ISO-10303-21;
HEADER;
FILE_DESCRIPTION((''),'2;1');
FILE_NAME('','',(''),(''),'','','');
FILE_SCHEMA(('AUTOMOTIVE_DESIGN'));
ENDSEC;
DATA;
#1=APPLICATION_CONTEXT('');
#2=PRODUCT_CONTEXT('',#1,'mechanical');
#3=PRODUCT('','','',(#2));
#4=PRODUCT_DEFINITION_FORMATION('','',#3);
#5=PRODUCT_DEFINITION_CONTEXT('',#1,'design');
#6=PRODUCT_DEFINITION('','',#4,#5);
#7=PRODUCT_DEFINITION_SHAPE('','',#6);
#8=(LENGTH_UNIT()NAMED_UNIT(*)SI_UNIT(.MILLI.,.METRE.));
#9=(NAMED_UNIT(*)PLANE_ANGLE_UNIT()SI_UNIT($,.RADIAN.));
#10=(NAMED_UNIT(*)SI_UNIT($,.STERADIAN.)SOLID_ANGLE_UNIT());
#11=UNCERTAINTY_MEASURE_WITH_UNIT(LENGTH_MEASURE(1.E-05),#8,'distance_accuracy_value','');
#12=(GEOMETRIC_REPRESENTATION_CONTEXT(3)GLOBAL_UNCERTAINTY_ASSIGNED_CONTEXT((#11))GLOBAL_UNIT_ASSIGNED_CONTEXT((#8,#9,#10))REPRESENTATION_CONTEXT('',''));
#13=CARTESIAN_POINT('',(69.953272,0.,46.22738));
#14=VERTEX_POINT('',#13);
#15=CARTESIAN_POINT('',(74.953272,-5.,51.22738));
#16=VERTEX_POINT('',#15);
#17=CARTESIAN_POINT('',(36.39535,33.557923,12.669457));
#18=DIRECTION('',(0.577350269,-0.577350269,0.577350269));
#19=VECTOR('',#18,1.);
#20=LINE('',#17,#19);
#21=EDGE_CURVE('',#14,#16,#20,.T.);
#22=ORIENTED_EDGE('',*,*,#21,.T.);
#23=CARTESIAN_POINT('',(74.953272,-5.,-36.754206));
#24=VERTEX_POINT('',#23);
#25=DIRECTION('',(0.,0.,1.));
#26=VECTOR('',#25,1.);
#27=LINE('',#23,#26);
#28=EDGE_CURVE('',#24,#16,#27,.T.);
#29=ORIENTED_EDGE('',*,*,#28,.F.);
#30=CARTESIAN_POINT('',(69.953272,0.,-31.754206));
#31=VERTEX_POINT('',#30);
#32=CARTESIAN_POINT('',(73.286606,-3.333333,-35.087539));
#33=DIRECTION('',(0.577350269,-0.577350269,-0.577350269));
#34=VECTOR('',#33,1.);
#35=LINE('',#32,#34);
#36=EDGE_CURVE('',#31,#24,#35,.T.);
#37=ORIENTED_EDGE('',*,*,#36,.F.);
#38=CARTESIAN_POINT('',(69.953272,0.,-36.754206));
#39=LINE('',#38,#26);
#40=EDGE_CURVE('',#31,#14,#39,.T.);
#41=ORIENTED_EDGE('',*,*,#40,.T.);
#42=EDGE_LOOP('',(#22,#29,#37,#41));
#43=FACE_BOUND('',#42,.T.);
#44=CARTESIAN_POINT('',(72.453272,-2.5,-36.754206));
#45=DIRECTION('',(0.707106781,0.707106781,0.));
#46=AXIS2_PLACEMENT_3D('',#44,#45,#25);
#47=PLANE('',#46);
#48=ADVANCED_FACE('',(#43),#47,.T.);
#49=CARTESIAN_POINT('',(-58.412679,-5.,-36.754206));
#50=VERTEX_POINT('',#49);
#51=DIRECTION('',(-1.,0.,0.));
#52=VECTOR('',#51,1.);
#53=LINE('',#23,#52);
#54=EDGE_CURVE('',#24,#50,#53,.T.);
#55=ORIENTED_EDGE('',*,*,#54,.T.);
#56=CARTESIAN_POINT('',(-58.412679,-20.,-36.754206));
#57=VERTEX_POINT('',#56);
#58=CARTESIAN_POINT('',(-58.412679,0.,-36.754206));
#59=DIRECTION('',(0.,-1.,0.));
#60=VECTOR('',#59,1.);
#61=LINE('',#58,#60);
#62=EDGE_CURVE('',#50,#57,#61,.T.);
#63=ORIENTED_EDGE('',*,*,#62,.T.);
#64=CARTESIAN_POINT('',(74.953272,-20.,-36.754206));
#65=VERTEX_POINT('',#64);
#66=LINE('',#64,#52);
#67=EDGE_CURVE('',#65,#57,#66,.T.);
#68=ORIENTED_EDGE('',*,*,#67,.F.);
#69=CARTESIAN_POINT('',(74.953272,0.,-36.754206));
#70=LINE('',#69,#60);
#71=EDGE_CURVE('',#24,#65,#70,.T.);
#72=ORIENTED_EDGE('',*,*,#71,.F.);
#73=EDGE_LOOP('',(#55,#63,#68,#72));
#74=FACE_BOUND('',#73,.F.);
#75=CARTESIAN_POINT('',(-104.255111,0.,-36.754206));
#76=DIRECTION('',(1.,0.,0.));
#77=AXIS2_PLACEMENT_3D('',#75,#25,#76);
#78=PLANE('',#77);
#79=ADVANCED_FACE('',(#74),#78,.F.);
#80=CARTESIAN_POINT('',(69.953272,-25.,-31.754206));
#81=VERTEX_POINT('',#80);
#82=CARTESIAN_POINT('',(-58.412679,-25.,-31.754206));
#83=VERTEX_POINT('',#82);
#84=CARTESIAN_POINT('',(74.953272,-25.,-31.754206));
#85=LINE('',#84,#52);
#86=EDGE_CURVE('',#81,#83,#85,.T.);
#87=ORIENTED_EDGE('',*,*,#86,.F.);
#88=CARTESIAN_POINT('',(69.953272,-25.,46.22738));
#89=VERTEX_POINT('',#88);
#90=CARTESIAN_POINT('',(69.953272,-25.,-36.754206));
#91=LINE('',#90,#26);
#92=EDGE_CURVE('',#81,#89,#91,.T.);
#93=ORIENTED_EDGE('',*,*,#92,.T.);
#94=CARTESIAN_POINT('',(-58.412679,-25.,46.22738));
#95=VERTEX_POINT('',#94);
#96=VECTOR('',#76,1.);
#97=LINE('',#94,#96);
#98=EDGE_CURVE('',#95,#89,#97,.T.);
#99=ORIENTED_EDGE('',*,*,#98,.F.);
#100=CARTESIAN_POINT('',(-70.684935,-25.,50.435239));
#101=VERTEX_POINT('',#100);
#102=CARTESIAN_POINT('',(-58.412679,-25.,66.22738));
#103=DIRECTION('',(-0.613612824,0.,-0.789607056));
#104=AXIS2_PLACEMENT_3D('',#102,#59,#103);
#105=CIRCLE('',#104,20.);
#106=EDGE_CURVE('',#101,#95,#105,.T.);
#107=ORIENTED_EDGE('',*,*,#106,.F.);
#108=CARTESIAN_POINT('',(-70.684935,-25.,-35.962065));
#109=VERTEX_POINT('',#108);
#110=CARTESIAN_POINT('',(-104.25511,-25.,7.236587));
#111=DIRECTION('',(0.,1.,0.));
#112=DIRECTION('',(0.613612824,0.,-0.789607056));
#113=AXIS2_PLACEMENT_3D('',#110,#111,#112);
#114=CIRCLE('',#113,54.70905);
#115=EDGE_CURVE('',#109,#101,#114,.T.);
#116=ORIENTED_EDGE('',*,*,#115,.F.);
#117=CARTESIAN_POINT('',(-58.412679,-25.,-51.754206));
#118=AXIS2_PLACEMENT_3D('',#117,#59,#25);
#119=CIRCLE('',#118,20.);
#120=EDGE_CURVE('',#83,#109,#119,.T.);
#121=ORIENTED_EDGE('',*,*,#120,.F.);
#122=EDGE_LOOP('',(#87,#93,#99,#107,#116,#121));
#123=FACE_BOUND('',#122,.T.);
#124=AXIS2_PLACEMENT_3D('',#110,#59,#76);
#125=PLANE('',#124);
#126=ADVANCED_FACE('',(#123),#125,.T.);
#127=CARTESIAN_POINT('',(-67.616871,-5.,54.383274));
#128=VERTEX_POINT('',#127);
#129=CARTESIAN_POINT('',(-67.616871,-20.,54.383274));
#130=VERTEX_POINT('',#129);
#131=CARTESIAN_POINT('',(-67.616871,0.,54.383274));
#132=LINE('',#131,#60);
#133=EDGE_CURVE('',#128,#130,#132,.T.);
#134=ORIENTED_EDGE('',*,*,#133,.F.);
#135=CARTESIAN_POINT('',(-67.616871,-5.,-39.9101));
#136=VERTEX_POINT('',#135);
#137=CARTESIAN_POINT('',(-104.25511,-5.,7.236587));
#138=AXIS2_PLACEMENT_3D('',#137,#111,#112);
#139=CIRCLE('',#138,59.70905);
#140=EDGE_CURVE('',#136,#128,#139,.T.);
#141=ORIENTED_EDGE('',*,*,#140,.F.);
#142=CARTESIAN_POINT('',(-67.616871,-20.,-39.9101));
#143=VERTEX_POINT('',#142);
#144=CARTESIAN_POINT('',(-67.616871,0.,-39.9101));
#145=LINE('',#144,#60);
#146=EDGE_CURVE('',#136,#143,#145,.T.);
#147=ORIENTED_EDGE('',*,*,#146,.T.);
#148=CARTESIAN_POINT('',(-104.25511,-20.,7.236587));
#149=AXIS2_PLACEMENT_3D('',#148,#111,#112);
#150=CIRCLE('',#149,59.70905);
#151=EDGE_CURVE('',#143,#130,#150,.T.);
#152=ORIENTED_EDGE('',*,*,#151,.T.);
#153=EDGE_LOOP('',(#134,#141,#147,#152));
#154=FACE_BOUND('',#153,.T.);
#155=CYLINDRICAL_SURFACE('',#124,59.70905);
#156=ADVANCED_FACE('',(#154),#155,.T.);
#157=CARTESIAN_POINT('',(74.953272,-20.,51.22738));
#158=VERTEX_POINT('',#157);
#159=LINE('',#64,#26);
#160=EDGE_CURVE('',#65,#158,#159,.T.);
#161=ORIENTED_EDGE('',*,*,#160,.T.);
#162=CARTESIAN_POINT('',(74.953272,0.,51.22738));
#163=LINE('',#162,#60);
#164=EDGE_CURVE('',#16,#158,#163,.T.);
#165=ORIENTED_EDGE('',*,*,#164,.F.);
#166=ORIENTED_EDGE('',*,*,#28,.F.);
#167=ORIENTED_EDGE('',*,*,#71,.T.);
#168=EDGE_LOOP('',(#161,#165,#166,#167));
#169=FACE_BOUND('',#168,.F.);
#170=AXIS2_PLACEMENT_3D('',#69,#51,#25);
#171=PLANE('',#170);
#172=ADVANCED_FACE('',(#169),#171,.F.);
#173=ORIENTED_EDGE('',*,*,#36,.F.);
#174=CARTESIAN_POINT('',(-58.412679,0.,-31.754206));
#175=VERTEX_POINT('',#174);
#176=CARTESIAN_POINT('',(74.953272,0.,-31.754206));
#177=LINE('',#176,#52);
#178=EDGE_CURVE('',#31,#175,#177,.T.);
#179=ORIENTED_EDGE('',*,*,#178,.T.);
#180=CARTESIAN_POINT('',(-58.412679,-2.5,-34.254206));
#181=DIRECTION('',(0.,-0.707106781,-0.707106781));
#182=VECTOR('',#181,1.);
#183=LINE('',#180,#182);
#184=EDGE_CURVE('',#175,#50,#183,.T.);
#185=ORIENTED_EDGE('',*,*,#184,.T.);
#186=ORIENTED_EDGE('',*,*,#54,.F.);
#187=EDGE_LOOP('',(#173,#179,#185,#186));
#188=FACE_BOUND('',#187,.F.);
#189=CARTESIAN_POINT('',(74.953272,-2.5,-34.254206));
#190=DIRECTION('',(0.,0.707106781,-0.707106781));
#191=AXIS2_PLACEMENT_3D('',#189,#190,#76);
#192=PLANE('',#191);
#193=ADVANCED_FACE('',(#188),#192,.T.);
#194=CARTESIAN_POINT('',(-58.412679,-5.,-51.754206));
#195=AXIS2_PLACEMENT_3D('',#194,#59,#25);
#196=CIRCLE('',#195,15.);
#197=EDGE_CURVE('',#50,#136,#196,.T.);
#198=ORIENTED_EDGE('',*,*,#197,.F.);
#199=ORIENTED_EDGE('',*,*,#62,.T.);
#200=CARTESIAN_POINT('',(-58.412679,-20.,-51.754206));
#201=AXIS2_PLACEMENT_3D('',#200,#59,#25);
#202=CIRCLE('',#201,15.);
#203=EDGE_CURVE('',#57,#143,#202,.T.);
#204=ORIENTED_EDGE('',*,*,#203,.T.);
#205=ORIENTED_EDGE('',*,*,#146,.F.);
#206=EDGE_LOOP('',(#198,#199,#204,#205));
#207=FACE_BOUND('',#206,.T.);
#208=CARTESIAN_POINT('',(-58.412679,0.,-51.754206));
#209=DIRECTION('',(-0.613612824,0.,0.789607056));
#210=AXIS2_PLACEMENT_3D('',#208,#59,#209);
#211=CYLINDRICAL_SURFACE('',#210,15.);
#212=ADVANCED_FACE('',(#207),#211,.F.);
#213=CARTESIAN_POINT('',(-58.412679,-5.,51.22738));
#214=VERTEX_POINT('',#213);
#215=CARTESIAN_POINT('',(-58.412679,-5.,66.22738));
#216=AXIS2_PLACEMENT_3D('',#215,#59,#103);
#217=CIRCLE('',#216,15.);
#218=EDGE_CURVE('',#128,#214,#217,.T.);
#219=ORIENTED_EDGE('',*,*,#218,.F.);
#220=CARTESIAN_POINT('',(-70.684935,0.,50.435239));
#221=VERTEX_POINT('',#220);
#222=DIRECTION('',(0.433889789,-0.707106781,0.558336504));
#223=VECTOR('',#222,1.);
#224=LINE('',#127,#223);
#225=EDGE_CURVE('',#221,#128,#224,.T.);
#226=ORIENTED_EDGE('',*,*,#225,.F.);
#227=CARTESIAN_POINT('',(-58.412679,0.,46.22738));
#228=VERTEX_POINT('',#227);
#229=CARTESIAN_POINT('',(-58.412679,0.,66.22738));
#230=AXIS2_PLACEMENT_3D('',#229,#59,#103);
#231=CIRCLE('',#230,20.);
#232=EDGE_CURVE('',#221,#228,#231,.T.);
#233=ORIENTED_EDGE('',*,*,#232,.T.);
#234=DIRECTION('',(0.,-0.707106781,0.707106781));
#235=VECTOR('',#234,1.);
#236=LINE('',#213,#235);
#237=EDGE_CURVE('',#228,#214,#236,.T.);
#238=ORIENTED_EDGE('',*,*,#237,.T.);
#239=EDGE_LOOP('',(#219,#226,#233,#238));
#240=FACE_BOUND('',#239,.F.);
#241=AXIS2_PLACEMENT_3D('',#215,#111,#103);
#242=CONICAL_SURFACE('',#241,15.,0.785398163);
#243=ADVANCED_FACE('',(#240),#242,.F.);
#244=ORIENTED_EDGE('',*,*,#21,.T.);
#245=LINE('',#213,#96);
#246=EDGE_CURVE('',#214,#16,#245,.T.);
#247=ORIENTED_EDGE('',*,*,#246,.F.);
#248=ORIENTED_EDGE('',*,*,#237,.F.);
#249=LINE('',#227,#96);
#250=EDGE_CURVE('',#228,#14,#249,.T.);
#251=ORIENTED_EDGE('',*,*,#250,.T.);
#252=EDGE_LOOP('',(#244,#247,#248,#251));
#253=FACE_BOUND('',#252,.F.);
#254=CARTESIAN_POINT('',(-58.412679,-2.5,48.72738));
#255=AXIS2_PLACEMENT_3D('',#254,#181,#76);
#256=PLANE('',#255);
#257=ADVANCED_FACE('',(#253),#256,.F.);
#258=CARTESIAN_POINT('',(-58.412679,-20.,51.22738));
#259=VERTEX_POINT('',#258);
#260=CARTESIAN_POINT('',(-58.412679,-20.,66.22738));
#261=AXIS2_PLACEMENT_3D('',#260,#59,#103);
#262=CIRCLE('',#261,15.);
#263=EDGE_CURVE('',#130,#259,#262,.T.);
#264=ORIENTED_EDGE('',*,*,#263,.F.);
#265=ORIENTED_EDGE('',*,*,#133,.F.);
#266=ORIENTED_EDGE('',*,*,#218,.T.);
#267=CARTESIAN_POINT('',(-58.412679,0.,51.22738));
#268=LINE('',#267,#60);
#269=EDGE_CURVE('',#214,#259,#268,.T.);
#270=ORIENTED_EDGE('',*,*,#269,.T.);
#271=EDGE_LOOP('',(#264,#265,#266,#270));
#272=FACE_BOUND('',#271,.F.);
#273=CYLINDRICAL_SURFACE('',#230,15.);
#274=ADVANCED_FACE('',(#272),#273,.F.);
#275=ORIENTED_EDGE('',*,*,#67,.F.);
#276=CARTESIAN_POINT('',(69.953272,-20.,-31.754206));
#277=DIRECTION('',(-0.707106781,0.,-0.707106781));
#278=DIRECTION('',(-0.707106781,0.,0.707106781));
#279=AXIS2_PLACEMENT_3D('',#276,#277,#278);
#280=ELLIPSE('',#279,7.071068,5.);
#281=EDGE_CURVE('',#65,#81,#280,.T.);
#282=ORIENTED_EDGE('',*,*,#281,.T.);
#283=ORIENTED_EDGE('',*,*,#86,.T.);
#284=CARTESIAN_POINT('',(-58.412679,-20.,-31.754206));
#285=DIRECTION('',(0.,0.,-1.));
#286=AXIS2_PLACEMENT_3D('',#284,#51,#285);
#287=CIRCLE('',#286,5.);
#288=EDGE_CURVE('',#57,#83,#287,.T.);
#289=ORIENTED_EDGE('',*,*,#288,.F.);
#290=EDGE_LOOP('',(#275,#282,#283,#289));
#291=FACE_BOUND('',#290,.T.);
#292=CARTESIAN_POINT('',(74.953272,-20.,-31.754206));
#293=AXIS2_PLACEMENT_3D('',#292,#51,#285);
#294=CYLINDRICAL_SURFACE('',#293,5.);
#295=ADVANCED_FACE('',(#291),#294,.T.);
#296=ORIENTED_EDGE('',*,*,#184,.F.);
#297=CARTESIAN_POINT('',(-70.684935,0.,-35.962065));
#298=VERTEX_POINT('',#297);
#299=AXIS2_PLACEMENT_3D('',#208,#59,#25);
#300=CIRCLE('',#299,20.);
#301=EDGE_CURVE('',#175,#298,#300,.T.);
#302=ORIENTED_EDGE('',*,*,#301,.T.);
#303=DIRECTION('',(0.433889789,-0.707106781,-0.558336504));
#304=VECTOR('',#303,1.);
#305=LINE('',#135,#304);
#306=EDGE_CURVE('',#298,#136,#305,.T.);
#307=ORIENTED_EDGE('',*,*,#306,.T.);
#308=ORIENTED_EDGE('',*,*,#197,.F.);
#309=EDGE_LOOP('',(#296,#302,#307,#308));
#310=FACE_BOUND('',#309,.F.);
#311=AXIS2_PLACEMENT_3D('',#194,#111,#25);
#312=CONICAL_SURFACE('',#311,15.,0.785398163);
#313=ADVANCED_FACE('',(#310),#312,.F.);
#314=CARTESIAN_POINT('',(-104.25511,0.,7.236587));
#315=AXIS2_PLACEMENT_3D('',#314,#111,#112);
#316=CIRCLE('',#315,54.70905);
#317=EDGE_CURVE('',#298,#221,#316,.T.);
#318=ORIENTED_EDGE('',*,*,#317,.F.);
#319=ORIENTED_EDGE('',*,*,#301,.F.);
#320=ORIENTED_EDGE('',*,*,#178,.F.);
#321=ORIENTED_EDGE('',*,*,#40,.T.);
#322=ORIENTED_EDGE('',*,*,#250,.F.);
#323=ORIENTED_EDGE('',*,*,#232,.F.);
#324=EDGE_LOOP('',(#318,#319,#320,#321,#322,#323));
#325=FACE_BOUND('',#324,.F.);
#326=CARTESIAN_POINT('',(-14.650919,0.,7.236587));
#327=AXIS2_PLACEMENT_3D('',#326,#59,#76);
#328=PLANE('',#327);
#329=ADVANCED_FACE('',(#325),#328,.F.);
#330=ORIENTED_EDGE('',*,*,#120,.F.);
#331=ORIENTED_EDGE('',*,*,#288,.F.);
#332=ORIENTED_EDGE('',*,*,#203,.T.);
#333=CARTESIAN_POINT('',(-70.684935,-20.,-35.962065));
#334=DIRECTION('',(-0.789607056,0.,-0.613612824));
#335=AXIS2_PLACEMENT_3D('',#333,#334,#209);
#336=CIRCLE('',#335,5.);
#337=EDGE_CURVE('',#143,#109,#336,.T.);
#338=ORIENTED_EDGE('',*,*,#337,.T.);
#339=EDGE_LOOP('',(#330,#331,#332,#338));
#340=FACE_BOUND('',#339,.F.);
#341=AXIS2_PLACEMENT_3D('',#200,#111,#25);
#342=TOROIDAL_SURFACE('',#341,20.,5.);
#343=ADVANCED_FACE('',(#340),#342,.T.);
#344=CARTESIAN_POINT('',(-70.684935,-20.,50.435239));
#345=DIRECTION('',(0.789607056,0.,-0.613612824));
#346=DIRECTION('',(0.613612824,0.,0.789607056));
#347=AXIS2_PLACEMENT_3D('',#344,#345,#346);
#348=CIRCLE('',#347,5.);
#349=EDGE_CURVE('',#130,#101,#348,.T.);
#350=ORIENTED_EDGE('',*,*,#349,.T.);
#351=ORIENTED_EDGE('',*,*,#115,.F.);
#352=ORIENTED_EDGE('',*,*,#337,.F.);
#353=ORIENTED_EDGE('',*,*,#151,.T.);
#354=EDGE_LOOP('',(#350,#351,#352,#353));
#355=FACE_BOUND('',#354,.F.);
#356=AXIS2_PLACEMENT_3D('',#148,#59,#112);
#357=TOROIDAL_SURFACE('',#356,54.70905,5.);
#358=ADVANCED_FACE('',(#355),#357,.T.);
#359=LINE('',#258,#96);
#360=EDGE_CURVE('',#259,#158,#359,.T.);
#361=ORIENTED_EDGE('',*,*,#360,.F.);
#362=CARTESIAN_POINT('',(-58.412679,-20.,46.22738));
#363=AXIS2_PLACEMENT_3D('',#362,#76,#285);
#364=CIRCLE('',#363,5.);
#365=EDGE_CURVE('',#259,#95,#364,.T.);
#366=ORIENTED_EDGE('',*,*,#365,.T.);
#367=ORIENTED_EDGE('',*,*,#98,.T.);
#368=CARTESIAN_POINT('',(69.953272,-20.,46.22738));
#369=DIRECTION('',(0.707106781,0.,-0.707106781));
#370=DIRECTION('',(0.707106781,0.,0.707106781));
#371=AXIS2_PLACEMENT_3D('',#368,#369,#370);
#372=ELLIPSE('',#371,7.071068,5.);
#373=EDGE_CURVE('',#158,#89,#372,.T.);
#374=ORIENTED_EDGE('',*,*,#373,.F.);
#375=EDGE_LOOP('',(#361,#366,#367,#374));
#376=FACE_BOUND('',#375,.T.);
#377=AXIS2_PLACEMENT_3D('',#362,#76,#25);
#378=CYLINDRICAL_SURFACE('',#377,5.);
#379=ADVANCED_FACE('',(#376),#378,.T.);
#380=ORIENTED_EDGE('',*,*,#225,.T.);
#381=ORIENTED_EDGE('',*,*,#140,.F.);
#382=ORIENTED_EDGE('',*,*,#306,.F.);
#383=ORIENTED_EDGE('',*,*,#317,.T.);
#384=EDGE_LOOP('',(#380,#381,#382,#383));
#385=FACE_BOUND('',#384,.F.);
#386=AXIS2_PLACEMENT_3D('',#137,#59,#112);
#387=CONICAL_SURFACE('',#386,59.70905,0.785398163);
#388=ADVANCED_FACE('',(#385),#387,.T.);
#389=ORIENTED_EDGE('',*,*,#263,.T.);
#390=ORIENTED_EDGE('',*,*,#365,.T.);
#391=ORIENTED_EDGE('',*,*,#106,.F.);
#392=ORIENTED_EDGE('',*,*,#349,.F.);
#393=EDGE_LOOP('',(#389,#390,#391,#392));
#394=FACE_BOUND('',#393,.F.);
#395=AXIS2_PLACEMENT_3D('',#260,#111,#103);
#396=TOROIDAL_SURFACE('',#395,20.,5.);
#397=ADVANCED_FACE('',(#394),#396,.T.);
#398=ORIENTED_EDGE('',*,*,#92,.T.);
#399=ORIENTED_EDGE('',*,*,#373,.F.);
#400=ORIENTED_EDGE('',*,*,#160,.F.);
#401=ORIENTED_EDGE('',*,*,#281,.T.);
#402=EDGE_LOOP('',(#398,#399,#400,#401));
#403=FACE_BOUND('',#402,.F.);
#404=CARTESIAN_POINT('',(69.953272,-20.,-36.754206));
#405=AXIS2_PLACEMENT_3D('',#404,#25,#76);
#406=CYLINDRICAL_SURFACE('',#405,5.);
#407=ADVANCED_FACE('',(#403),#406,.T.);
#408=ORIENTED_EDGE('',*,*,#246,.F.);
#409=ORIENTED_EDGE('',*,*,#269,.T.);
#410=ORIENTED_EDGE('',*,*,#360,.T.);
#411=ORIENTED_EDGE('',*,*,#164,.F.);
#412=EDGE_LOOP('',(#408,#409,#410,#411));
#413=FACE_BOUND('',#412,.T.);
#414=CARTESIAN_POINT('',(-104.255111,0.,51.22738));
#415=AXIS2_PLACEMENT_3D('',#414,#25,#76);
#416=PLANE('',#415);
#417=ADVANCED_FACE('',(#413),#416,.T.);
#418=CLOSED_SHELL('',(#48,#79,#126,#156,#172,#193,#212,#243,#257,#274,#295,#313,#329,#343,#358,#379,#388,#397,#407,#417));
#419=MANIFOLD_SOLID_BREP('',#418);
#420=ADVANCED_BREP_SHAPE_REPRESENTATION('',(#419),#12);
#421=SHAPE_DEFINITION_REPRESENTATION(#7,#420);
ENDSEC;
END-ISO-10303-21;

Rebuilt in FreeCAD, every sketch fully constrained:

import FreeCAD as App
import Part
import Sketcher
Q = App.Units.Quantity


def edges_at(feature, points):
    """Names of the edges that pass closest to the given points."""
    edges = feature.Shape.Edges
    near = lambda p: min(range(len(edges)), key=lambda i: edges[i].distToShape(Part.Vertex(*p))[0])
    return sorted({f"Edge{near(p) + 1}" for p in points})

doc = App.newDocument("Part")
params = doc.addObject("Spreadsheet::Sheet", "Params")
for row, (alias, value) in enumerate([
    ("pad1_length", "25 mm"),
    ("fillet_radius", "15 mm"),
    ("fillet2_radius", "5 mm"),
    ("chamfer_size", "5 mm"),
], start=1):
    params.set(f"A{row}", alias)
    params.set(f"B{row}", "=" + value)
    params.setAlias(f"B{row}", alias)

body = doc.addObject("PartDesign::Body", "Body")

sketch1 = body.newObject("Sketcher::SketchObject", "Sketch")
sketch1.AttachmentSupport = (doc.getObject("XZ_Plane"), [""])
sketch1.MapMode = "FlatFace"
sketch1.addGeometry(Part.LineSegment(App.Vector(-104, 51, 0), App.Vector(-104, -37, 0)), False)
sketch1.addGeometry(Part.LineSegment(App.Vector(-104, -37, 0), App.Vector(75, -37, 0)), False)
sketch1.addGeometry(Part.LineSegment(App.Vector(75, -37, 0), App.Vector(75, 51, 0)), False)
sketch1.addGeometry(Part.LineSegment(App.Vector(75, 51, 0), App.Vector(-104, 51, 0)), False)
sketch1.addConstraint(Sketcher.Constraint("Coincident", 0, 2, 1, 1))
sketch1.addConstraint(Sketcher.Constraint("Coincident", 1, 2, 2, 1))
sketch1.addConstraint(Sketcher.Constraint("Coincident", 2, 2, 3, 1))
sketch1.addConstraint(Sketcher.Constraint("Coincident", 3, 2, 0, 1))
sketch1.addConstraint(Sketcher.Constraint("Vertical", 0))
sketch1.addConstraint(Sketcher.Constraint("Horizontal", 1))
sketch1.addConstraint(Sketcher.Constraint("Vertical", 2))
sketch1.addConstraint(Sketcher.Constraint("Horizontal", 3))
sketch1.addConstraint(Sketcher.Constraint("DistanceX", 1, 1, 1, 2, Q("179.208383 mm")))
sketch1.addConstraint(Sketcher.Constraint("DistanceY", 0, 2, 0, 1, Q("87.981586 mm")))
sketch1.addConstraint(Sketcher.Constraint("DistanceX", 0, 2, -1, 1, Q("104.255111 mm")))
sketch1.addConstraint(Sketcher.Constraint("DistanceY", -1, 1, 2, 2, Q("51.22738 mm")))
pad1 = body.newObject("PartDesign::Pad", "Pad")
pad1.Profile = sketch1
pad1.setExpression("Length", "Params.pad1_length")

sketch2 = body.newObject("Sketcher::SketchObject", "Sketch001")
sketch2.AttachmentSupport = (doc.getObject("XZ_Plane"), [""])
sketch2.MapMode = "FlatFace"
sketch2.AttachmentOffset = App.Placement(App.Vector(0, 0, 25), App.Rotation())
sketch2.addGeometry(Part.Circle(App.Vector(-104, 7, 0), App.Vector(0, 0, 1), 60), False)
sketch2.addConstraint(Sketcher.Constraint("Diameter", 0, Q("119.4181 mm")))
sketch2.addConstraint(Sketcher.Constraint("DistanceX", 0, 3, -1, 1, Q("104.25511 mm")))
sketch2.addConstraint(Sketcher.Constraint("DistanceY", -1, 1, 0, 3, Q("7.236587 mm")))
pad2 = body.newObject("PartDesign::Pad", "Pad001")
pad2.Profile = sketch2
pad2.Type = "UpToLast"
pad2.Reversed = True
doc.recompute()

fillet = body.newObject("PartDesign::Fillet", "Fillet")
fillet.Base = (pad2, edges_at(pad2, [(-63.882, -12.5, 51.227), (-63.882, -12.5, -36.754)]))
fillet.setExpression("Radius", "Params.fillet_radius")
doc.recompute()

fillet2 = body.newObject("PartDesign::Fillet", "Fillet001")
fillet2.Base = (fillet, edges_at(fillet, [
    (8.27, -25, 51.227),
    (-63.278, -25, 52.038),
    (74.953, -25, 7.237),
    (-163.964, -25, 7.237),
    (8.27, -25, -36.754),
    (-63.278, -25, -37.565),
]))
fillet2.setExpression("Radius", "Params.fillet2_radius")
doc.recompute()

chamfer = body.newObject("PartDesign::Chamfer", "Chamfer")
chamfer.Base = (fillet2, edges_at(fillet2, [
    (8.27, 0, 51.227),
    (-63.278, 0, 52.038),
    (74.953, 0, 7.237),
    (-163.964, 0, 7.237),
    (8.27, 0, -36.754),
    (-63.278, 0, -37.565),
]))
chamfer.setExpression("Size", "Params.chamfer_size")

doc.recompute()
